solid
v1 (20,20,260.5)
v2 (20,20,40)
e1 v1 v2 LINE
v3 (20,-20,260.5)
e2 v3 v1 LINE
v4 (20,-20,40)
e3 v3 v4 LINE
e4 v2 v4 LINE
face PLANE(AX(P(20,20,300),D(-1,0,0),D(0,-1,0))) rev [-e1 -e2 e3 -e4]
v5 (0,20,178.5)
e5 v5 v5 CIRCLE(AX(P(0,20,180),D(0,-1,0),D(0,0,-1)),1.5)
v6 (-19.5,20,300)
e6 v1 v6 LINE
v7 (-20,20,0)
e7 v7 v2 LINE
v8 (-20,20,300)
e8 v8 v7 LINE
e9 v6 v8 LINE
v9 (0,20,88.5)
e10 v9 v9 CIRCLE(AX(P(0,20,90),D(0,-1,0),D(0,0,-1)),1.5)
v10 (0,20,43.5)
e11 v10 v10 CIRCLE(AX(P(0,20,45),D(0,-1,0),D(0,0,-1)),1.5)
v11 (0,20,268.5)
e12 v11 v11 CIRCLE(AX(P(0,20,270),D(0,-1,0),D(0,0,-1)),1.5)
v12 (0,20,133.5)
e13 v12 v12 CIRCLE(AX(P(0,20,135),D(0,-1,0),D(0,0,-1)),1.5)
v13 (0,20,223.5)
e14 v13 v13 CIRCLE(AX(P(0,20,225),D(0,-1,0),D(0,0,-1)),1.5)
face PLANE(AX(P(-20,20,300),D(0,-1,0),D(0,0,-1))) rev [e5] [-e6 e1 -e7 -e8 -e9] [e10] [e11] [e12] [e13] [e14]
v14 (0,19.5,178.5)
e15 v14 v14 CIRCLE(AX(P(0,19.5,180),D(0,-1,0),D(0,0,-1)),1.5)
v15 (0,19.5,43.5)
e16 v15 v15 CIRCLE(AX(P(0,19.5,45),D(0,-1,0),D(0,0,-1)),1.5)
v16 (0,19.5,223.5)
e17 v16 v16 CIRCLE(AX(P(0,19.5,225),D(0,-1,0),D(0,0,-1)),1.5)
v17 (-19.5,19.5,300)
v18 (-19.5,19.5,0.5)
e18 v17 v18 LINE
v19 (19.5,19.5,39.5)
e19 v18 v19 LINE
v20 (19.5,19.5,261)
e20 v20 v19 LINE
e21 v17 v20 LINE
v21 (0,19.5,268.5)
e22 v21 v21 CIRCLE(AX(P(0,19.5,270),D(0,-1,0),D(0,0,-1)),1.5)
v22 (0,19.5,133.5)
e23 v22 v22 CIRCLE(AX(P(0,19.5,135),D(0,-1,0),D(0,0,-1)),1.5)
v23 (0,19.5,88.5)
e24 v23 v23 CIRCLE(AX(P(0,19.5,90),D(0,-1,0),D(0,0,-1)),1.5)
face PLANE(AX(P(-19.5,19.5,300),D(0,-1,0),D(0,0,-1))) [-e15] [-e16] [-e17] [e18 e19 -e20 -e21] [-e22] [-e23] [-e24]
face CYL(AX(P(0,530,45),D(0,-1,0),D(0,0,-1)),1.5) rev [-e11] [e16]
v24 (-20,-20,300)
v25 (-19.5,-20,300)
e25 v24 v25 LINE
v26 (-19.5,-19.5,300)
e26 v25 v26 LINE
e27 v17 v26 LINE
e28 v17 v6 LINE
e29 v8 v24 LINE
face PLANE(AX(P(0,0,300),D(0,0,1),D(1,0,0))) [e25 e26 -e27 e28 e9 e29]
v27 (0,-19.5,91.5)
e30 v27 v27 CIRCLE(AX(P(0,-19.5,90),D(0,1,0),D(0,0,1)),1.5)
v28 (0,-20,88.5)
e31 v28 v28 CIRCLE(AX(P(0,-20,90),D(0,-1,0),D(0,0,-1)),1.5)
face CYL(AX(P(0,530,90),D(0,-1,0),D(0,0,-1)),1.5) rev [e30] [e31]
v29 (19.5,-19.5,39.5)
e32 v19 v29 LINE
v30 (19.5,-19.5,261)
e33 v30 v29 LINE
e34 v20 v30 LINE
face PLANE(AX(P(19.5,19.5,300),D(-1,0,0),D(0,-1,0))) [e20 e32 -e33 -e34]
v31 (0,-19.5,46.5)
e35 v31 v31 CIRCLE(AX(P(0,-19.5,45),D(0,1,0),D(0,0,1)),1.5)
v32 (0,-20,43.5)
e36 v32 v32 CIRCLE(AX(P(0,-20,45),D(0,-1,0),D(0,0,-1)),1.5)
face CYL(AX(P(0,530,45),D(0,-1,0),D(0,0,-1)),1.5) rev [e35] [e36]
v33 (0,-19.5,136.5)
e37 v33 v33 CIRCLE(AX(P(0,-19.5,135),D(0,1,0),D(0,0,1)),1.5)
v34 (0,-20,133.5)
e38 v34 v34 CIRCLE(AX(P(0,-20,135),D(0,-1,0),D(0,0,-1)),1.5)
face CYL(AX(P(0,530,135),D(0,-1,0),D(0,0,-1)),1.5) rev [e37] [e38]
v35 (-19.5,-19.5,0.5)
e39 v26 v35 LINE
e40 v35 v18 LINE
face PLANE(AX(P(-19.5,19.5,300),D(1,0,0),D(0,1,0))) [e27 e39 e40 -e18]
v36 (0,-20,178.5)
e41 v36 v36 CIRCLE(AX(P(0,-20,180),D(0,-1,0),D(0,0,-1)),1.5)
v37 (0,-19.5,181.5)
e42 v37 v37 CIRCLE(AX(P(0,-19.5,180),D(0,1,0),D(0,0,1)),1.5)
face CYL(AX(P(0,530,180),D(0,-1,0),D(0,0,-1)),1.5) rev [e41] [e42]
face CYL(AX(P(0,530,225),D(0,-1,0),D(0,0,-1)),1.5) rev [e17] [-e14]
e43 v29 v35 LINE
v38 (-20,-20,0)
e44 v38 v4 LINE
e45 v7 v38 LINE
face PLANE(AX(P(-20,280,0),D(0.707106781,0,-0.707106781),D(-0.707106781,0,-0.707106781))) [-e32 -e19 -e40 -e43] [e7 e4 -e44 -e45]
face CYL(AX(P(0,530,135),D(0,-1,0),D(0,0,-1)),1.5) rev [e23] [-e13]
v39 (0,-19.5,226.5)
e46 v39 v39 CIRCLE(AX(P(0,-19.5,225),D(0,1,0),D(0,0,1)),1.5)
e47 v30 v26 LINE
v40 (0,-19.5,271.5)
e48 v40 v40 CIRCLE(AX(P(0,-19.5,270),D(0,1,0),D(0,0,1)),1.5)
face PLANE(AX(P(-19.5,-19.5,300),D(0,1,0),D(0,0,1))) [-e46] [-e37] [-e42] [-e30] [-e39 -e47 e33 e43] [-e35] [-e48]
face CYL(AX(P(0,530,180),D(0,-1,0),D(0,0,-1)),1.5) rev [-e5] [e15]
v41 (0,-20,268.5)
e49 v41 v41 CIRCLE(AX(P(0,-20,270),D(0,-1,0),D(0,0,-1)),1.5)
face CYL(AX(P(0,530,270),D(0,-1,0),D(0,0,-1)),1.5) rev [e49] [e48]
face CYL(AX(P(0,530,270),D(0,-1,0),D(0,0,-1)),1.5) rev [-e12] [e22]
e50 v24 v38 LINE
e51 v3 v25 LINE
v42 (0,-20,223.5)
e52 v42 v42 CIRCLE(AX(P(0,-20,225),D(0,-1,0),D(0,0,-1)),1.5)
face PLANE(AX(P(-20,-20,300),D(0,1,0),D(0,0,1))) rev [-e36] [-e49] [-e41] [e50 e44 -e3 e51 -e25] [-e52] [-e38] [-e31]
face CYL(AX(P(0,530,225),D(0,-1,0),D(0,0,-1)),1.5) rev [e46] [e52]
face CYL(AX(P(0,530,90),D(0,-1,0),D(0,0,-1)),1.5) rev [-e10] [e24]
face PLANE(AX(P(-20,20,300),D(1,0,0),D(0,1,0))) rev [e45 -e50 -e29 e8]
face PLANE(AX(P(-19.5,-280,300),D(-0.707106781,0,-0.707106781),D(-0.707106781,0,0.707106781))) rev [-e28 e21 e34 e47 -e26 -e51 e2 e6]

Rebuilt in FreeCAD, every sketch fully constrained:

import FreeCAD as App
import Part
import Sketcher


def add_polygon(sketch, points):
    """Adds a closed chain of lines whose ends are joined by coincident constraints."""
    first, n = sketch.GeometryCount, len(points)
    for a, b in zip(points, points[1:] + points[:1]):
        sketch.addGeometry(Part.LineSegment(App.Vector(*a, 0), App.Vector(*b, 0)), False)
    for i in range(n):
        sketch.addConstraint(Sketcher.Constraint("Coincident", first + i, 2, first + (i + 1) % n, 1))

doc = App.newDocument("Part")
body = doc.addObject("PartDesign::Body", "Body")

sketch1 = body.newObject("Sketcher::SketchObject", "Sketch")
sketch1.AttachmentSupport = (doc.getObject("XY_Plane"), [""])
sketch1.MapMode = "FlatFace"
add_polygon(sketch1, [(-20, 20), (-20, -20), (20, -20), (20, 20)])
add_polygon(sketch1, [(20, -20), (-20, -20), (-20, 20), (20, 20)])
sketch1.addConstraint([
    Sketcher.Constraint("Vertical", 0),
    Sketcher.Constraint("Horizontal", 1),
    Sketcher.Constraint("Vertical", 2),
    Sketcher.Constraint("Horizontal", 3),
    Sketcher.Constraint("Horizontal", 4),
    Sketcher.Constraint("Vertical", 5),
    Sketcher.Constraint("Horizontal", 6),
    Sketcher.Constraint("Vertical", 7),
    Sketcher.Constraint("Symmetric", 0, 2, 2, 2, -1, 1),
    Sketcher.Constraint("Symmetric", 4, 2, 6, 2, -1, 1),
    Sketcher.Constraint("Equal", 3, 0),
    Sketcher.Constraint("Equal", 6, 5),
    Sketcher.Constraint("DistanceX", 1, 1, 1, 2, 40.0),
    Sketcher.Constraint("DistanceX", 4, 2, 4, 1, 39.0),
])
pad1 = body.newObject("PartDesign::Pad", "Pad")
pad1.Profile = sketch1
pad1.Length = 300

sketch2 = body.newObject("Sketcher::SketchObject", "Sketch001")
sketch2.AttachmentSupport = (doc.getObject("XZ_Plane"), [""])
sketch2.MapMode = "FlatFace"
sketch2.AttachmentOffset = App.Placement(App.Vector(0, 0, -20), App.Rotation())
add_polygon(sketch2, [(20, 260), (-20, 300), (20, 300)])
sketch2.addConstraint([
    Sketcher.Constraint("Horizontal", 1),
    Sketcher.Constraint("Vertical", 2),
    Sketcher.Constraint("Equal", 1, 2),
    Sketcher.Constraint("DistanceX", 1, 1, 1, 2, 39.5),
    Sketcher.Constraint("DistanceY", -1, 1, 0, 2, 300.0),
    Sketcher.Constraint("DistanceX", -1, 1, 1, 2, 20.0),
])
pocket1 = body.newObject("PartDesign::Pocket", "Pocket")
pocket1.Profile = sketch2
pocket1.Length = 300
pocket1.Reversed = True

sketch3 = body.newObject("Sketcher::SketchObject", "Sketch002")
sketch3.AttachmentSupport = (doc.getObject("XZ_Plane"), [""])
sketch3.MapMode = "FlatFace"
sketch3.AttachmentOffset = App.Placement(App.Vector(0, 0, 20), App.Rotation())
add_polygon(sketch3, [(20, 40), (-20, 0), (20, 0)])
sketch3.addConstraint([
    Sketcher.Constraint("Horizontal", 1),
    Sketcher.Constraint("Vertical", 2),
    Sketcher.Constraint("Symmetric", 0, 2, 1, 2, -1, 1),
    Sketcher.Constraint("Equal", 1, 2),
    Sketcher.Constraint("DistanceX", 1, 1, 1, 2, 40.0),
])
pocket2 = body.newObject("PartDesign::Pocket", "Pocket001")
pocket2.Profile = sketch3
pocket2.Length = 300

sketch4 = body.newObject("Sketcher::SketchObject", "Sketch003")
sketch4.AttachmentSupport = (doc.getObject("XZ_Plane"), [""])
sketch4.MapMode = "FlatFace"
sketch4.AttachmentOffset = App.Placement(App.Vector(0, 0, 20), App.Rotation())
sketch4.addGeometry([
    Part.Circle(App.Vector(0, 45, 0), App.Vector(0, 0, 1), 1.5),
    Part.Circle(App.Vector(0, 90, 0), App.Vector(0, 0, 1), 1.5),
    Part.Circle(App.Vector(0, 135, 0), App.Vector(0, 0, 1), 1.5),
    Part.Circle(App.Vector(0, 180, 0), App.Vector(0, 0, 1), 1.5),
    Part.Circle(App.Vector(0, 225, 0), App.Vector(0, 0, 1), 1.5),
    Part.Circle(App.Vector(0, 270, 0), App.Vector(0, 0, 1), 1.5),
], False)
sketch4.addConstraint([
    Sketcher.Constraint("Equal", 0, 1),
    Sketcher.Constraint("Equal", 1, 2),
    Sketcher.Constraint("Equal", 2, 3),
    Sketcher.Constraint("Equal", 3, 4),
    Sketcher.Constraint("Equal", 4, 5),
    Sketcher.Constraint("PointOnObject", 0, 3, -2),
    Sketcher.Constraint("PointOnObject", 1, 3, -2),
    Sketcher.Constraint("PointOnObject", 2, 3, -2),
    Sketcher.Constraint("PointOnObject", 3, 3, -2),
    Sketcher.Constraint("PointOnObject", 4, 3, -2),
    Sketcher.Constraint("PointOnObject", 5, 3, -2),
    Sketcher.Constraint("Diameter", 0, 3.0),
    Sketcher.Constraint("DistanceY", -1, 1, 0, 3, 45.0),
    Sketcher.Constraint("DistanceY", -1, 1, 1, 3, 90.0),
    Sketcher.Constraint("DistanceY", -1, 1, 2, 3, 135.0),
    Sketcher.Constraint("DistanceY", -1, 1, 3, 3, 180.0),
    Sketcher.Constraint("DistanceY", -1, 1, 4, 3, 225.0),
    Sketcher.Constraint("DistanceY", -1, 1, 5, 3, 270.0),
])
pocket3 = body.newObject("PartDesign::Pocket", "Pocket002")
pocket3.Profile = sketch4
pocket3.Length = 550

doc.recompute()
